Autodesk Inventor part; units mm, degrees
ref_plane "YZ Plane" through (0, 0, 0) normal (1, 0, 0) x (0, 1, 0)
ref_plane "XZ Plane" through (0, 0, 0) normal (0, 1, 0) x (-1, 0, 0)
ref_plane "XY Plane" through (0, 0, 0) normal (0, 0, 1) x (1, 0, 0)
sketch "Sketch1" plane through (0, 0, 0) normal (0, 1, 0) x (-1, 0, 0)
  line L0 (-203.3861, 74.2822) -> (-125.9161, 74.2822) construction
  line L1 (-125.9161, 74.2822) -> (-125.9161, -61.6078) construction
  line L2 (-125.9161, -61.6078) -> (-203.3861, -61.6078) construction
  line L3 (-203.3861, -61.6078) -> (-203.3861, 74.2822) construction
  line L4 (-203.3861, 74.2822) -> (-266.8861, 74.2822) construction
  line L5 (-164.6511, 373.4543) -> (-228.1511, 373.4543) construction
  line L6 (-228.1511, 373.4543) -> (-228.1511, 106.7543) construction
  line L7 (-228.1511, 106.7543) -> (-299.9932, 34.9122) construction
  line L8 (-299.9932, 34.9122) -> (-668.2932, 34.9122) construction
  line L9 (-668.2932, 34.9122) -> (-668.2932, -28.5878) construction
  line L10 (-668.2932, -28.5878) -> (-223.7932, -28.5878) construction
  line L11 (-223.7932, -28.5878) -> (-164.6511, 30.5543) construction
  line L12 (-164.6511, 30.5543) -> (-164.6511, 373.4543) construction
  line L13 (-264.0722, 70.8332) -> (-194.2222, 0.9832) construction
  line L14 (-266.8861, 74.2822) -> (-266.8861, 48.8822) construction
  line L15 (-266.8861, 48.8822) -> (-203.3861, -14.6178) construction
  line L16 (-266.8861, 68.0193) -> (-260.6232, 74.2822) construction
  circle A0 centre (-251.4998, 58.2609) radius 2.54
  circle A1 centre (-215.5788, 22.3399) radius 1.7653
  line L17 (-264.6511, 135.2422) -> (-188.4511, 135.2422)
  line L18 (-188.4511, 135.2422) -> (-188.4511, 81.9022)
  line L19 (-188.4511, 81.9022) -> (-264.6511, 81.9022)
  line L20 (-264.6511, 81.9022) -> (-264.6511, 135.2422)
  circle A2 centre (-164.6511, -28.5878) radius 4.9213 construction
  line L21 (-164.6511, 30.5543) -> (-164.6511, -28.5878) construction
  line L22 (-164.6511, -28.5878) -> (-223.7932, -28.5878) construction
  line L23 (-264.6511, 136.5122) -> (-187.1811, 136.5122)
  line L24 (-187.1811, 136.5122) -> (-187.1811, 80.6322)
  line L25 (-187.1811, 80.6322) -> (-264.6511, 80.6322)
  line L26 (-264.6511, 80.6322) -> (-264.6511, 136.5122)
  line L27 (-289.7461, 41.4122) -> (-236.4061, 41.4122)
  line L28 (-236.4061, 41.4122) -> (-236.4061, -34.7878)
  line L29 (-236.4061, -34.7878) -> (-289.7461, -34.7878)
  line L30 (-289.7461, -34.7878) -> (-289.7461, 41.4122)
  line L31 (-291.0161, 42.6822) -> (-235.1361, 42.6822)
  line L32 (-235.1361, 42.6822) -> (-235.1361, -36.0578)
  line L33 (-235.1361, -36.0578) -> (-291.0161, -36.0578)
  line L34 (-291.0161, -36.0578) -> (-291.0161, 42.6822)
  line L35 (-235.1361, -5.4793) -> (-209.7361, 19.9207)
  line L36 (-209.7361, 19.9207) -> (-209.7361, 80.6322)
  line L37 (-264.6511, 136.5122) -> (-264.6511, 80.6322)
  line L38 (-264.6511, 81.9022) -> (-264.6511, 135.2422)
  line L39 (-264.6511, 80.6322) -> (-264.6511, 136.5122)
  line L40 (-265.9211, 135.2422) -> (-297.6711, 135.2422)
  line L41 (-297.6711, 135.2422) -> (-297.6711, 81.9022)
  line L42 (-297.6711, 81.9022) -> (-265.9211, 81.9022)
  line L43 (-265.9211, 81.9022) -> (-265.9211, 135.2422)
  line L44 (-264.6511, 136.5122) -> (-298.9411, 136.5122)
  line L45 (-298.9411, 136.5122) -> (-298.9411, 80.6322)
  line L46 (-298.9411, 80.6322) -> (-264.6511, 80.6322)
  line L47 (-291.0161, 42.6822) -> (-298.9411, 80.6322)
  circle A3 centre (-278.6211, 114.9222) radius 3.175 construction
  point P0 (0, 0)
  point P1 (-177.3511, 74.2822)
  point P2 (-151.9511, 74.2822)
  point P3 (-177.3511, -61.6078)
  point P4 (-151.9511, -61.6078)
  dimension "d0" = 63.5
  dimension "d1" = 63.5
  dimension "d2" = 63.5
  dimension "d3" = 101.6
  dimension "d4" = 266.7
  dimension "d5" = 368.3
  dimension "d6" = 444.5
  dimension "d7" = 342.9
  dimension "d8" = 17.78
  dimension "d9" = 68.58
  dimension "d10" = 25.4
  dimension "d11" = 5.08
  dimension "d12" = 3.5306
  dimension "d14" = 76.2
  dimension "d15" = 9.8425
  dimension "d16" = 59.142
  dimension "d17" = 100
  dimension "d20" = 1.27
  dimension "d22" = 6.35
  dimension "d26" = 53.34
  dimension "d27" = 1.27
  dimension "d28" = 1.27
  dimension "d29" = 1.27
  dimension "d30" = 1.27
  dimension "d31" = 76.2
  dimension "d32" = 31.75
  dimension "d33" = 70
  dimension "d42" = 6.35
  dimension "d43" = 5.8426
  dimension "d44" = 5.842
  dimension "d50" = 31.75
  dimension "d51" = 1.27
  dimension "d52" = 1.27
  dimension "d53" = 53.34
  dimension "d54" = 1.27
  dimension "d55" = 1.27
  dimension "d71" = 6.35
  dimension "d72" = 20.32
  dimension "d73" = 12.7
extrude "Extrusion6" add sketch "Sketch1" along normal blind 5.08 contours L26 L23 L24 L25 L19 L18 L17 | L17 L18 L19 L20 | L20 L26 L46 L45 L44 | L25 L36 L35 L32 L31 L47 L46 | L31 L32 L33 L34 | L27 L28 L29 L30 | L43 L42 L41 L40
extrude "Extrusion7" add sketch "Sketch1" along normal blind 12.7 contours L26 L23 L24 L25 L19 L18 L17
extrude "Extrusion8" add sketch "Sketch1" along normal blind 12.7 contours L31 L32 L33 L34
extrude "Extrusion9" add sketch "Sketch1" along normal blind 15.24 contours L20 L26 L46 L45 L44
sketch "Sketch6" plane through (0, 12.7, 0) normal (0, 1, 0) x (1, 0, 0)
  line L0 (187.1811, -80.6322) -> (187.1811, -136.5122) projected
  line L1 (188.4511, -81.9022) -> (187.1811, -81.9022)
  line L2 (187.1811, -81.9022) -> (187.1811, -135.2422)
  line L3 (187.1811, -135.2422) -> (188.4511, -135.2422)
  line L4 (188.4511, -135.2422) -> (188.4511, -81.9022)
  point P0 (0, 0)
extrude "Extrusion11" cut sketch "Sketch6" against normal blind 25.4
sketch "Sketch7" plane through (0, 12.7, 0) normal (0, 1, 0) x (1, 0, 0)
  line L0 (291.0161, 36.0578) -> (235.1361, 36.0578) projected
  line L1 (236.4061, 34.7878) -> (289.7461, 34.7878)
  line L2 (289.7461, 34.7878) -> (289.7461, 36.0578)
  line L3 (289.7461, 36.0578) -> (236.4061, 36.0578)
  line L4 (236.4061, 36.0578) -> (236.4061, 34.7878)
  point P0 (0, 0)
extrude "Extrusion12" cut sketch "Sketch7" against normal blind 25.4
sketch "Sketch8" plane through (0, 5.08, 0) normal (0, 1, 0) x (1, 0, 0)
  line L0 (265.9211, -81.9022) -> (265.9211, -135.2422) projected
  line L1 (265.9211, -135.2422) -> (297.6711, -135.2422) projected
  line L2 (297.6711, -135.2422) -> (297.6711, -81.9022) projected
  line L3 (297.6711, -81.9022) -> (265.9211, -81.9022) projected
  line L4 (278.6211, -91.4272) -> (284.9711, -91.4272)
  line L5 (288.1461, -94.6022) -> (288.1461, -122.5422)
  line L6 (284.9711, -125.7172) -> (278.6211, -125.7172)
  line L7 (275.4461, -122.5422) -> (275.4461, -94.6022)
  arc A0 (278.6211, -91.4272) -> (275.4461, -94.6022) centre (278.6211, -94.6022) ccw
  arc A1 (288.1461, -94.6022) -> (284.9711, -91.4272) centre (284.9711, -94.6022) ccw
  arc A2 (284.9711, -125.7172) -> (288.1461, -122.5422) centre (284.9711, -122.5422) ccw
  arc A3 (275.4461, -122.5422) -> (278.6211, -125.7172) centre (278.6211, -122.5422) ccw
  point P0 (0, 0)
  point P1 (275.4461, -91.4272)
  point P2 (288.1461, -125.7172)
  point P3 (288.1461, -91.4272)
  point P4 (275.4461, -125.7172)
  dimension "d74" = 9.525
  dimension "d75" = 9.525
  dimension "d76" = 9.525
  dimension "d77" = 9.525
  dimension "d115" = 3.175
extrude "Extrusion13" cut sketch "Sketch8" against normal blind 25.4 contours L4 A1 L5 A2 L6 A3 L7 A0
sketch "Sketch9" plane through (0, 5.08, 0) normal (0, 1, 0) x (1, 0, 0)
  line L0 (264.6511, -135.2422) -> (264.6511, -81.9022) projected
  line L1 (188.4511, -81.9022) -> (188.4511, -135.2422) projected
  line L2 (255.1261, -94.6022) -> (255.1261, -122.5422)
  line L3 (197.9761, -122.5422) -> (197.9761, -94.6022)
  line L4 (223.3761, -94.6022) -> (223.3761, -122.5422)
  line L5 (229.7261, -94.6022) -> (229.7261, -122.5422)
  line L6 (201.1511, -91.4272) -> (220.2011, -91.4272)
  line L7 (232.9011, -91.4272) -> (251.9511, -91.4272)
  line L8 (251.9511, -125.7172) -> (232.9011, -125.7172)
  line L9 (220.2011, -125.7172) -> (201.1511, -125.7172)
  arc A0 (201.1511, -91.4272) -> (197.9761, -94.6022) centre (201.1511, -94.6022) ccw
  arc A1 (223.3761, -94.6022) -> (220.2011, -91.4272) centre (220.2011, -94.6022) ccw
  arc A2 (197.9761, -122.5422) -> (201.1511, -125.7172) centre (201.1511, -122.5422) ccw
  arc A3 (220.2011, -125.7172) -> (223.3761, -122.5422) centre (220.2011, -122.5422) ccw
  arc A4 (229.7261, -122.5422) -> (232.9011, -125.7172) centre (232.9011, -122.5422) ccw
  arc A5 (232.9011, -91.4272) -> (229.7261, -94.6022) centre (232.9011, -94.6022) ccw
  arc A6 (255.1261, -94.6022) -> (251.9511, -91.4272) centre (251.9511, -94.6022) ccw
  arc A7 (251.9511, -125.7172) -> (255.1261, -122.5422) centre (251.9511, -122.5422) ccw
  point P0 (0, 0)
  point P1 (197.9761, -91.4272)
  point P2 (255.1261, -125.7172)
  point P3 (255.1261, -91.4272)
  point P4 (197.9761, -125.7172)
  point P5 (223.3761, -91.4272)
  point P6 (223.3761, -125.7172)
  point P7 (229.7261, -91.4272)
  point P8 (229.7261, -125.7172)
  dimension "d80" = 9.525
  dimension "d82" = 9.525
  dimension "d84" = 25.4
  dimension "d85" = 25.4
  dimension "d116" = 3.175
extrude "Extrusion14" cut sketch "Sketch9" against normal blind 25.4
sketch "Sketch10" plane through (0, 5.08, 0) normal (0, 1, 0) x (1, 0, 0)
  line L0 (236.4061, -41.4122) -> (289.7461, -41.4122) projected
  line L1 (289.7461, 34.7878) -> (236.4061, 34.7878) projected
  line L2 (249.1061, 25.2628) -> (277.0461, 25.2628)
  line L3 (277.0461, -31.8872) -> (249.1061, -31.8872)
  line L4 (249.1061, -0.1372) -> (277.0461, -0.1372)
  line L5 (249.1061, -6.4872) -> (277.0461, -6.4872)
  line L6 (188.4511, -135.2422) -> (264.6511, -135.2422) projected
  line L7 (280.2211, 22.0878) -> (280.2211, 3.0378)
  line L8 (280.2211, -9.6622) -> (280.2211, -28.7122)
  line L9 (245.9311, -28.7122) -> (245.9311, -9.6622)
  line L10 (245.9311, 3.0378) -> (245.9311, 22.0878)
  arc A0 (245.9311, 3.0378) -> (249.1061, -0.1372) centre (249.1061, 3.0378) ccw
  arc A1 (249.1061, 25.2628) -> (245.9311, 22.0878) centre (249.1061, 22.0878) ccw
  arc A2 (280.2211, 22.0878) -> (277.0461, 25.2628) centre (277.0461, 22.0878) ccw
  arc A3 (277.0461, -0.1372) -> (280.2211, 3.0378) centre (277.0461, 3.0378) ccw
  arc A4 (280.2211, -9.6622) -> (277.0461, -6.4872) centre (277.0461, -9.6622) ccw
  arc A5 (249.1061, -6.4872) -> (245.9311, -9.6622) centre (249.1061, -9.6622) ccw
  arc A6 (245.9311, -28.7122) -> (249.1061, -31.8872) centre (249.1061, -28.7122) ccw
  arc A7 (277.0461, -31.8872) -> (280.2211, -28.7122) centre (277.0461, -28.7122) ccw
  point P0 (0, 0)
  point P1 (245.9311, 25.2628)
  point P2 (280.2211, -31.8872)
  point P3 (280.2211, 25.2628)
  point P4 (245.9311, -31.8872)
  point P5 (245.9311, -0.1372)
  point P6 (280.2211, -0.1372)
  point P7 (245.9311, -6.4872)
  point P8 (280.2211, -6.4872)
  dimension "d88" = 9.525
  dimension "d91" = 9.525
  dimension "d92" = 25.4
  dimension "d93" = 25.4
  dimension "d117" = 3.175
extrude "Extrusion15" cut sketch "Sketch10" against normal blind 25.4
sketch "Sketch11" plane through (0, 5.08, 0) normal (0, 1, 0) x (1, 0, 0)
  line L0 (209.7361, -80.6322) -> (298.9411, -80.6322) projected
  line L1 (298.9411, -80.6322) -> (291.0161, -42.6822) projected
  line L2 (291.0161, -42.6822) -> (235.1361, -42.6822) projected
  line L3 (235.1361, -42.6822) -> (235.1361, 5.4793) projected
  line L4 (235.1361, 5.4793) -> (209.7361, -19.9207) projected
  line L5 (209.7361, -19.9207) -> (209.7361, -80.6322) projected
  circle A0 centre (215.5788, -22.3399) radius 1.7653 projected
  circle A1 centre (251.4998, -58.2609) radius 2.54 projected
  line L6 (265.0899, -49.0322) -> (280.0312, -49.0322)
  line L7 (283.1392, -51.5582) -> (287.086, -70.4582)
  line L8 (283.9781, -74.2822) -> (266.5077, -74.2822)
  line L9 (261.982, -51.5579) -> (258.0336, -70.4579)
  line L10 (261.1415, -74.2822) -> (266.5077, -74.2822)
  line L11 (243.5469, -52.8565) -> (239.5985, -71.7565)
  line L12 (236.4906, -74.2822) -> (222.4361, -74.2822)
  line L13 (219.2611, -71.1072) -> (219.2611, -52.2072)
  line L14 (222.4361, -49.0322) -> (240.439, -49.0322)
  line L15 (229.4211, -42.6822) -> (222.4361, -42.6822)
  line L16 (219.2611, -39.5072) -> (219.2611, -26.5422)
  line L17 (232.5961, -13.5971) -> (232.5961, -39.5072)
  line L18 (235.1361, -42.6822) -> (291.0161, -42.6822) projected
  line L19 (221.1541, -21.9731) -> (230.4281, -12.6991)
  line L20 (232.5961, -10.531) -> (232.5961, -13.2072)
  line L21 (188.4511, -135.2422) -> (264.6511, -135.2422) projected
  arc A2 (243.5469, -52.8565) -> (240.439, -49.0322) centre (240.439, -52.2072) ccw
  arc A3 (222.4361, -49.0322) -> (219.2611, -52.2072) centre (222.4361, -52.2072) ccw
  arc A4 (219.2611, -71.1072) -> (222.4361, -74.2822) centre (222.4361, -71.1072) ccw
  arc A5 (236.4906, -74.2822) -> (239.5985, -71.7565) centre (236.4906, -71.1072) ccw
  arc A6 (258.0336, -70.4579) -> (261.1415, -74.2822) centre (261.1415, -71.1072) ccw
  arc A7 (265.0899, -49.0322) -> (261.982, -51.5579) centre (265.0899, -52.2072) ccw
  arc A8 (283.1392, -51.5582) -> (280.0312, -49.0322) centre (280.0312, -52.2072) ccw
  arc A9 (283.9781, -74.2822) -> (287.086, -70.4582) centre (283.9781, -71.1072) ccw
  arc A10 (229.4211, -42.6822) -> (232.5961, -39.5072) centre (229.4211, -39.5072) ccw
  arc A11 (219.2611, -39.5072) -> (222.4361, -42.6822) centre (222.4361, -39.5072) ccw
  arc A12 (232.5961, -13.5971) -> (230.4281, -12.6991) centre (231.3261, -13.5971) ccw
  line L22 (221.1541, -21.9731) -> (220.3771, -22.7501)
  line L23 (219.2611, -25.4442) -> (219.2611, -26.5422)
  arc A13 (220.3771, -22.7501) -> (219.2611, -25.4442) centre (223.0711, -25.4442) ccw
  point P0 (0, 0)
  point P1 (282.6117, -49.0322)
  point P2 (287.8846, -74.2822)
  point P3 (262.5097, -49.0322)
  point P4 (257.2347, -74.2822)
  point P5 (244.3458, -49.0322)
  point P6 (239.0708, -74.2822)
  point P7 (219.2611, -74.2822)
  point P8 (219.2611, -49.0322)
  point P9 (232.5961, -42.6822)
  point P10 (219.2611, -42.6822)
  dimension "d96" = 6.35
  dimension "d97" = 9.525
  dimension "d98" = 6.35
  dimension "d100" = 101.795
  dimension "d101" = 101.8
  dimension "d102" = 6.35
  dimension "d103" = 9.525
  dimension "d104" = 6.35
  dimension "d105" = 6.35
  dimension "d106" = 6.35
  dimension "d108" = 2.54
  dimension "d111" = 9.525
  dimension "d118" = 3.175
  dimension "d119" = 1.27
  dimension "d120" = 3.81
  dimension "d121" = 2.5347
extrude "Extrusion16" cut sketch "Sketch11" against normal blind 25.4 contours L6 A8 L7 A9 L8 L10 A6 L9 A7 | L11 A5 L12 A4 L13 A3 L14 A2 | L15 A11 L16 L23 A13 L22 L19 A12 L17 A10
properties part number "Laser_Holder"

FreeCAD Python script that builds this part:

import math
import FreeCAD as App
import Part
import Sketcher
Q = App.Units.Quantity


def add_polygon(sketch, points):
    """Adds a closed chain of lines whose ends are joined by coincident constraints."""
    first, n = sketch.GeometryCount, len(points)
    for a, b in zip(points, points[1:] + points[:1]):
        sketch.addGeometry(Part.LineSegment(App.Vector(*a, 0), App.Vector(*b, 0)), False)
    for i in range(n):
        sketch.addConstraint(Sketcher.Constraint("Coincident", first + i, 2, first + (i + 1) % n, 1))

doc = App.newDocument("Part")
params = doc.addObject("Spreadsheet::Sheet", "Params")
for row, (alias, value) in enumerate([
    ("sketch1_diameter", "0.2 in"),
    ("sketch1_diameter2", "0.139 in"),
    ("sketch1_width", "4.4 in"),
    ("sketch1_width2", "2.2 in"),
    ("sketch1_height", "3.1 in"),
    ("pad1_length", "0.2 in"),
    ("sketch2_width", "3 in"),
    ("sketch2_height", "2.1 in"),
    ("sketch2_height2", "0.05 in"),
    ("pad2_length", "0.5 in"),
    ("sketch3_height", "3 in"),
    ("sketch3_width", "2.1 in"),
    ("pad3_length", "0.5 in"),
    ("sketch4_height", "2.1 in"),
    ("sketch4_width", "1.25 in"),
    ("pad4_length", "0.6 in"),
    ("sketch5_height", "2.1 in"),
    ("sketch5_width", "0.05 in"),
    ("pocket1_length", "1 in"),
    ("sketch6_width", "2.1 in"),
    ("sketch6_height", "0.05 in"),
    ("pocket2_length", "1 in"),
    ("sketch7_radius", "0.125 in"),
    ("sketch7_height", "1.1 in"),
    ("pocket3_length", "1 in"),
    ("sketch8_radius", "0.125 in"),
    ("sketch8_height", "1.1 in"),
    ("pocket4_length", "1 in"),
    ("sketch9_radius", "0.125 in"),
    ("sketch9_width", "1.1 in"),
    ("pocket5_length", "1 in"),
    ("sketch10_radius", "0.05 in"),
    ("sketch10_radius2", "0.15 in"),
    ("sketch10_radius3", "0.125 in"),
    ("pocket6_length", "1 in"),
], start=1):
    params.set(f"A{row}", alias)
    params.set(f"B{row}", "=" + value)
    params.setAlias(f"B{row}", alias)

body = doc.addObject("PartDesign::Body", "Body")

# Sketch on XZ plane
sketch1 = body.newObject("Sketcher::SketchObject", "Sketch")
sketch1.AttachmentSupport = (doc.getObject("XZ_Plane"), [""])
sketch1.MapMode = "FlatFace"
add_polygon(sketch1, [(187.2, 136.5), (298.9, 136.5), (298.9, 80.6), (291, 42.7), (291, -36.1), (235.1, -36.1), (235.1, -5.5), (209.7, 19.9), (209.7, 80.6), (187.2, 80.6)])  # lines 0-9
sketch1.addGeometry(Part.Circle(App.Vector(251.5, 58.3, 0), App.Vector(0, 0, 1), 2.5), False)  # 10
sketch1.addGeometry(Part.Circle(App.Vector(215.6, 22.3, 0), App.Vector(0, 0, 1), 1.8), False)  # 11
sketch1.addConstraint([
    Sketcher.Constraint("Horizontal", 0),
    Sketcher.Constraint("Vertical", 1),
    Sketcher.Constraint("Vertical", 3),
    Sketcher.Constraint("Horizontal", 4),
    Sketcher.Constraint("Vertical", 5),
    Sketcher.Constraint("Vertical", 7),
    Sketcher.Constraint("Horizontal", 8),
    Sketcher.Constraint("Vertical", 9),
    Sketcher.Constraint("Horizontal", 1, 2, 7, 2),
    Sketcher.Constraint("Equal", 4, 1),
    Sketcher.Constraint("Diameter", 10, Q("0.2 in")),
    Sketcher.Constraint("Diameter", 11, Q("0.139 in")),
    Sketcher.Constraint("DistanceX", 6, 2, 5, 2, Q("1 in")),
    Sketcher.Constraint("DistanceY", 5, 2, 6, 2, Q("1 in")),
    Sketcher.Constraint("DistanceX", 0, 1, 0, 2, Q("4.4 in")),
    Sketcher.Constraint("DistanceX", 4, 2, 4, 1, Q("2.2 in")),
    Sketcher.Constraint("DistanceY", 3, 2, 3, 1, Q("3.1 in")),
    Sketcher.Constraint("DistanceX", 8, 2, 8, 1, Q("0.888 in")),
    Sketcher.Constraint("DistanceX", 6, 2, 11, 3, 5.8427),
    Sketcher.Constraint("DistanceY", 5, 1, 5, 2, 30.5785),
    Sketcher.Constraint("DistanceY", 7, 1, 7, 2, 60.7115),
    Sketcher.Constraint("DistanceY", -1, 1, 0, 2, Q("5.3745 in")),
    Sketcher.Constraint("DistanceX", -1, 1, 10, 3, 251.4998),
    Sketcher.Constraint("DistanceY", -1, 1, 10, 3, 58.261),
    Sketcher.Constraint("DistanceX", -1, 1, 11, 3, 215.5788),
    Sketcher.Constraint("DistanceY", -1, 1, 11, 3, 22.34),
])
sketch1.setExpression("Constraints[20]", "Params.sketch1_diameter")
sketch1.setExpression("Constraints[21]", "Params.sketch1_diameter2")
sketch1.setExpression("Constraints[24]", "Params.sketch1_width")
sketch1.setExpression("Constraints[25]", "Params.sketch1_width2")
sketch1.setExpression("Constraints[26]", "Params.sketch1_height")
pad1 = body.newObject("PartDesign::Pad", "Pad")
pad1.Profile = sketch1
pad1.setExpression("Length", "Params.pad1_length")
pad1.Reversed = True

# Sketch on XZ plane
sketch2 = body.newObject("Sketcher::SketchObject", "Sketch001")
sketch2.AttachmentSupport = (doc.getObject("XZ_Plane"), [""])
sketch2.MapMode = "FlatFace"
add_polygon(sketch2, [(264.7, 136.5), (264.7, 135.2), (188.5, 135.2), (188.5, 81.9), (264.7, 81.9), (264.7, 80.6), (187.2, 80.6), (187.2, 136.5)])  # lines 0-7
sketch2.addConstraint([
    Sketcher.Constraint("Vertical", 0),
    Sketcher.Constraint("Horizontal", 1),
    Sketcher.Constraint("Vertical", 2),
    Sketcher.Constraint("Horizontal", 3),
    Sketcher.Constraint("Vertical", 4),
    Sketcher.Constraint("Horizontal", 5),
    Sketcher.Constraint("Vertical", 6),
    Sketcher.Constraint("Horizontal", 7),
    Sketcher.Constraint("Vertical", 0, 2, 3, 2),
    Sketcher.Constraint("Equal", 0, 4),
    Sketcher.Constraint("DistanceX", 1, 2, 1, 1, Q("3 in")),
    Sketcher.Constraint("DistanceY", 2, 2, 2, 1, Q("2.1 in")),
    Sketcher.Constraint("DistanceY", 0, 2, 0, 1, Q("0.05 in")),
    Sketcher.Constraint("DistanceX", 5, 2, 2, 2, Q("0.05 in")),
    Sketcher.Constraint("DistanceY", -1, 1, 0, 2, Q("5.3245 in")),
    Sketcher.Constraint("DistanceX", -1, 1, 0, 2, 264.651),
])
sketch2.setExpression("Constraints[18]", "Params.sketch2_width")
sketch2.setExpression("Constraints[19]", "Params.sketch2_height")
sketch2.setExpression("Constraints[20]", "Params.sketch2_height2")
pad2 = body.newObject("PartDesign::Pad", "Pad001")
pad2.Profile = sketch2
pad2.setExpression("Length", "Params.pad2_length")
pad2.Reversed = True

# Sketch on XZ plane
sketch3 = body.newObject("Sketcher::SketchObject", "Sketch002")
sketch3.AttachmentSupport = (doc.getObject("XZ_Plane"), [""])
sketch3.MapMode = "FlatFace"
add_polygon(sketch3, [(235, 43), (291, 43), (291, -36), (235, -36)])  # lines 0-3
add_polygon(sketch3, [(290, -35), (290, 41), (236, 41), (236, -35)])  # lines 4-7
sketch3.addConstraint([
    Sketcher.Constraint("Horizontal", 0),
    Sketcher.Constraint("Vertical", 1),
    Sketcher.Constraint("Horizontal", 2),
    Sketcher.Constraint("Vertical", 3),
    Sketcher.Constraint("Vertical", 4),
    Sketcher.Constraint("Horizontal", 5),
    Sketcher.Constraint("Vertical", 6),
    Sketcher.Constraint("Horizontal", 7),
    Sketcher.Constraint("DistanceY", 4, 1, 4, 2, Q("3 in")),
    Sketcher.Constraint("DistanceX", 5, 2, 5, 1, Q("2.1 in")),
    Sketcher.Constraint("DistanceX", 4, 2, 0, 2, Q("0.05 in")),
    Sketcher.Constraint("DistanceY", 4, 2, 0, 2, Q("0.05 in")),
    Sketcher.Constraint("DistanceX", 3, 2, 5, 2, Q("0.05 in")),
    Sketcher.Constraint("DistanceY", 2, 2, 6, 2, Q("0.05 in")),
    Sketcher.Constraint("DistanceY", -1, 1, 0, 2, Q("1.6804 in")),
    Sketcher.Constraint("DistanceX", -1, 1, 0, 2, 291.016),
])
sketch3.setExpression("Constraints[16]", "Params.sketch3_height")
sketch3.setExpression("Constraints[17]", "Params.sketch3_width")
pad3 = body.newObject("PartDesign::Pad", "Pad002")
pad3.Profile = sketch3
pad3.setExpression("Length", "Params.pad3_length")
pad3.Reversed = True

# Sketch on XZ plane
sketch4 = body.newObject("Sketcher::SketchObject", "Sketch003")
sketch4.AttachmentSupport = (doc.getObject("XZ_Plane"), [""])
sketch4.MapMode = "FlatFace"
add_polygon(sketch4, [(265, 81), (265, 137), (299, 137), (299, 81)])  # lines 0-3
add_polygon(sketch4, [(298, 135), (266, 135), (266, 82), (298, 82)])  # lines 4-7
sketch4.addConstraint([
    Sketcher.Constraint("Vertical", 0),
    Sketcher.Constraint("Horizontal", 1),
    Sketcher.Constraint("Vertical", 2),
    Sketcher.Constraint("Horizontal", 3),
    Sketcher.Constraint("Horizontal", 4),
    Sketcher.Constraint("Vertical", 5),
    Sketcher.Constraint("Horizontal", 6),
    Sketcher.Constraint("Vertical", 7),
    Sketcher.Constraint("DistanceY", 5, 2, 5, 1, Q("2.1 in")),
    Sketcher.Constraint("DistanceX", 4, 2, 4, 1, Q("1.25 in")),
    Sketcher.Constraint("DistanceX", 0, 2, 4, 2, Q("0.05 in")),
    Sketcher.Constraint("DistanceY", 4, 2, 0, 2, Q("0.05 in")),
    Sketcher.Constraint("DistanceY", 3, 2, 5, 2, Q("0.05 in")),
    Sketcher.Constraint("DistanceX", 6, 2, 2, 2, Q("0.05 in")),
    Sketcher.Constraint("DistanceY", -1, 1, 0, 2, Q("5.3745 in")),
    Sketcher.Constraint("DistanceX", -1, 1, 0, 2, 264.651),
])
sketch4.setExpression("Constraints[16]", "Params.sketch4_height")
sketch4.setExpression("Constraints[17]", "Params.sketch4_width")
pad4 = body.newObject("PartDesign::Pad", "Pad003")
pad4.Profile = sketch4
pad4.setExpression("Length", "Params.pad4_length")
pad4.Reversed = True

# Sketch on XZ plane
sketch5 = body.newObject("Sketcher::SketchObject", "Sketch004")
sketch5.AttachmentSupport = (doc.getObject("XZ_Plane"), [""])
sketch5.MapMode = "FlatFace"
sketch5.AttachmentOffset = App.Placement(App.Vector(0, 0, -0.5 * 25.4), App.Rotation())
add_polygon(sketch5, [(188.5, 81.9), (187.2, 81.9), (187.2, 135.2), (188.5, 135.2)])  # lines 0-3
sketch5.addConstraint([
    Sketcher.Constraint("Horizontal", 0),
    Sketcher.Constraint("Vertical", 1),
    Sketcher.Constraint("Horizontal", 2),
    Sketcher.Constraint("Vertical", 3),
    Sketcher.Constraint("DistanceY", 1, 1, 1, 2, Q("2.1 in")),
    Sketcher.Constraint("DistanceX", 0, 2, 0, 1, Q("0.05 in")),
    Sketcher.Constraint("DistanceY", -1, 1, 0, 2, Q("3.2245 in")),
    Sketcher.Constraint("DistanceX", -1, 1, 0, 2, 187.181),
])
sketch5.setExpression("Constraints[8]", "Params.sketch5_height")
sketch5.setExpression("Constraints[9]", "Params.sketch5_width")
pocket1 = body.newObject("PartDesign::Pocket", "Pocket")
pocket1.Profile = sketch5
pocket1.setExpression("Length", "Params.pocket1_length")
pocket1.Reversed = True

# Sketch on XZ plane
sketch6 = body.newObject("Sketcher::SketchObject", "Sketch005")
sketch6.AttachmentSupport = (doc.getObject("XZ_Plane"), [""])
sketch6.MapMode = "FlatFace"
sketch6.AttachmentOffset = App.Placement(App.Vector(0, 0, -0.5 * 25.4), App.Rotation())
add_polygon(sketch6, [(289.7, -34.8), (289.7, -36.1), (236.4, -36.1), (236.4, -34.8)])  # lines 0-3
sketch6.addConstraint([
    Sketcher.Constraint("Vertical", 0),
    Sketcher.Constraint("Horizontal", 1),
    Sketcher.Constraint("Vertical", 2),
    Sketcher.Constraint("Horizontal", 3),
    Sketcher.Constraint("DistanceX", 1, 2, 1, 1, Q("2.1 in")),
    Sketcher.Constraint("DistanceY", 0, 2, 0, 1, Q("0.05 in")),
    Sketcher.Constraint("DistanceY", 0, 2, -1, 1, Q("1.4196 in")),
    Sketcher.Constraint("DistanceX", -1, 1, 0, 2, 289.746),
])
sketch6.setExpression("Constraints[8]", "Params.sketch6_width")
sketch6.setExpression("Constraints[9]", "Params.sketch6_height")
pocket2 = body.newObject("PartDesign::Pocket", "Pocket001")
pocket2.Profile = sketch6
pocket2.setExpression("Length", "Params.pocket2_length")
pocket2.Reversed = True

# Sketch on XZ plane
sketch7 = body.newObject("Sketcher::SketchObject", "Sketch006")
sketch7.AttachmentSupport = (doc.getObject("XZ_Plane"), [""])
sketch7.MapMode = "FlatFace"
sketch7.AttachmentOffset = App.Placement(App.Vector(0, 0, -0.2 * 25.4), App.Rotation())
sketch7.addGeometry([
    Part.LineSegment(App.Vector(285, 91.4, 0), App.Vector(278.6, 91.4, 0)),  # 0
    Part.ArcOfCircle(Part.Circle(App.Vector(278.6, 94.6, 0), App.Vector(0, 0, 1), 3.2), math.radians(180), math.radians(270)),  # 1
    Part.LineSegment(App.Vector(275.4, 94.6, 0), App.Vector(275.4, 122.5, 0)),  # 2
    Part.ArcOfCircle(Part.Circle(App.Vector(278.6, 122.5, 0), App.Vector(0, 0, 1), 3.2), math.radians(90), math.radians(180)),  # 3
    Part.LineSegment(App.Vector(278.6, 125.7, 0), App.Vector(285, 125.7, 0)),  # 4
    Part.ArcOfCircle(Part.Circle(App.Vector(285, 122.5, 0), App.Vector(0, 0, 1), 3.2), math.radians(0), math.radians(90)),  # 5
    Part.LineSegment(App.Vector(288.1, 122.5, 0), App.Vector(288.1, 94.6, 0)),  # 6
    Part.ArcOfCircle(Part.Circle(App.Vector(285, 94.6, 0), App.Vector(0, 0, 1), 3.2), math.radians(-90), math.radians(0)),  # 7
], False)
sketch7.addConstraint([
    Sketcher.Constraint("Tangent", 0, 2, 1, 2),
    Sketcher.Constraint("Tangent", 1, 1, 2, 1),
    Sketcher.Constraint("Tangent", 2, 2, 3, 2),
    Sketcher.Constraint("Tangent", 3, 1, 4, 1),
    Sketcher.Constraint("Tangent", 4, 2, 5, 2),
    Sketcher.Constraint("Tangent", 5, 1, 6, 1),
    Sketcher.Constraint("Tangent", 6, 2, 7, 2),
    Sketcher.Constraint("Tangent", 7, 1, 0, 1),
    Sketcher.Constraint("Horizontal", 0),
    Sketcher.Constraint("Vertical", 2),
    Sketcher.Constraint("Horizontal", 4),
    Sketcher.Constraint("Vertical", 6),
    Sketcher.Constraint("Equal", 1, 3),
    Sketcher.Constraint("Equal", 3, 5),
    Sketcher.Constraint("Equal", 5, 7),
    Sketcher.Constraint("Radius", 1, Q("0.125 in")),
    Sketcher.Constraint("DistanceY", 2, 1, 2, 2, Q("1.1 in")),
    Sketcher.Constraint("DistanceX", 1, 1, 7, 3, Q("0.375 in")),
    Sketcher.Constraint("DistanceY", -1, 1, 1, 3, Q("3.7245 in")),
    Sketcher.Constraint("DistanceX", -1, 1, 1, 3, 278.621),
])
sketch7.setExpression("Constraints[15]", "Params.sketch7_radius")
sketch7.setExpression("Constraints[16]", "Params.sketch7_height")
pocket3 = body.newObject("PartDesign::Pocket", "Pocket002")
pocket3.Profile = sketch7
pocket3.setExpression("Length", "Params.pocket3_length")
pocket3.Reversed = True

# Sketch on XZ plane
sketch8 = body.newObject("Sketcher::SketchObject", "Sketch007")
sketch8.AttachmentSupport = (doc.getObject("XZ_Plane"), [""])
sketch8.MapMode = "FlatFace"
sketch8.AttachmentOffset = App.Placement(App.Vector(0, 0, -0.2 * 25.4), App.Rotation())
sketch8.addGeometry([
    Part.LineSegment(App.Vector(255.1, 122.5, 0), App.Vector(255.1, 94.6, 0)),  # 0
    Part.ArcOfCircle(Part.Circle(App.Vector(252, 94.6, 0), App.Vector(0, 0, 1), 3.2), math.radians(-90), math.radians(0)),  # 1
    Part.LineSegment(App.Vector(252, 91.4, 0), App.Vector(232.9, 91.4, 0)),  # 2
    Part.ArcOfCircle(Part.Circle(App.Vector(232.9, 94.6, 0), App.Vector(0, 0, 1), 3.2), math.radians(180), math.radians(270)),  # 3
    Part.LineSegment(App.Vector(229.7, 94.6, 0), App.Vector(229.7, 122.5, 0)),  # 4
    Part.ArcOfCircle(Part.Circle(App.Vector(232.9, 122.5, 0), App.Vector(0, 0, 1), 3.2), math.radians(90), math.radians(180)),  # 5
    Part.LineSegment(App.Vector(232.9, 125.7, 0), App.Vector(252, 125.7, 0)),  # 6
    Part.ArcOfCircle(Part.Circle(App.Vector(252, 122.5, 0), App.Vector(0, 0, 1), 3.2), math.radians(0), math.radians(90)),  # 7
    Part.LineSegment(App.Vector(198, 94.6, 0), App.Vector(198, 122.5, 0)),  # 8
    Part.ArcOfCircle(Part.Circle(App.Vector(201.2, 122.5, 0), App.Vector(0, 0, 1), 3.2), math.radians(90), math.radians(180)),  # 9
    Part.LineSegment(App.Vector(201.2, 125.7, 0), App.Vector(220.2, 125.7, 0)),  # 10
    Part.ArcOfCircle(Part.Circle(App.Vector(220.2, 122.5, 0), App.Vector(0, 0, 1), 3.2), math.radians(0), math.radians(90)),  # 11
    Part.LineSegment(App.Vector(223.4, 122.5, 0), App.Vector(223.4, 94.6, 0)),  # 12
    Part.ArcOfCircle(Part.Circle(App.Vector(220.2, 94.6, 0), App.Vector(0, 0, 1), 3.2), math.radians(-90), math.radians(0)),  # 13
    Part.LineSegment(App.Vector(220.2, 91.4, 0), App.Vector(201.2, 91.4, 0)),  # 14
    Part.ArcOfCircle(Part.Circle(App.Vector(201.2, 94.6, 0), App.Vector(0, 0, 1), 3.2), math.radians(180), math.radians(270)),  # 15
], False)
sketch8.addConstraint([
    Sketcher.Constraint("Tangent", 0, 2, 1, 2),
    Sketcher.Constraint("Tangent", 1, 1, 2, 1),
    Sketcher.Constraint("Tangent", 2, 2, 3, 2),
    Sketcher.Constraint("Tangent", 3, 1, 4, 1),
    Sketcher.Constraint("Tangent", 4, 2, 5, 2),
    Sketcher.Constraint("Tangent", 5, 1, 6, 1),
    Sketcher.Constraint("Tangent", 6, 2, 7, 2),
    Sketcher.Constraint("Tangent", 7, 1, 0, 1),
    Sketcher.Constraint("Tangent", 8, 2, 9, 2),
    Sketcher.Constraint("Tangent", 9, 1, 10, 1),
    Sketcher.Constraint("Tangent", 10, 2, 11, 2),
    Sketcher.Constraint("Tangent", 11, 1, 12, 1),
    Sketcher.Constraint("Tangent", 12, 2, 13, 2),
    Sketcher.Constraint("Tangent", 13, 1, 14, 1),
    Sketcher.Constraint("Tangent", 14, 2, 15, 2),
    Sketcher.Constraint("Tangent", 15, 1, 8, 1),
    Sketcher.Constraint("Vertical", 0),
    Sketcher.Constraint("Horizontal", 2),
    Sketcher.Constraint("Vertical", 4),
    Sketcher.Constraint("Horizontal", 6),
    Sketcher.Constraint("Vertical", 8),
    Sketcher.Constraint("Horizontal", 10),
    Sketcher.Constraint("Vertical", 12),
    Sketcher.Constraint("Horizontal", 14),
    Sketcher.Constraint("Equal", 1, 3),
    Sketcher.Constraint("Equal", 3, 5),
    Sketcher.Constraint("Equal", 5, 7),
    Sketcher.Constraint("Equal", 7, 9),
    Sketcher.Constraint("Equal", 9, 11),
    Sketcher.Constraint("Equal", 11, 13),
    Sketcher.Constraint("Equal", 13, 15),
    Sketcher.Constraint("Horizontal", 7, 3, 9, 3),
    Sketcher.Constraint("Horizontal", 3, 3, 13, 3),
    Sketcher.Constraint("Equal", 6, 10),
    Sketcher.Constraint("Radius", 1, Q("0.125 in")),
    Sketcher.Constraint("DistanceX", 4, 2, 7, 1, Q("1 in")),
    Sketcher.Constraint("DistanceY", 0, 2, 0, 1, Q("1.1 in")),
    Sketcher.Constraint("DistanceX", 9, 3, 7, 3, Q("2 in")),
    Sketcher.Constraint("DistanceY", -1, 1, 1, 3, Q("3.7245 in")),
    Sketcher.Constraint("DistanceX", -1, 1, 1, 3, 251.951),
])
sketch8.setExpression("Constraints[34]", "Params.sketch8_radius")
sketch8.setExpression("Constraints[36]", "Params.sketch8_height")
pocket4 = body.newObject("PartDesign::Pocket", "Pocket003")
pocket4.Profile = sketch8
pocket4.setExpression("Length", "Params.pocket4_length")
pocket4.Reversed = True

# Sketch on XZ plane
sketch9 = body.newObject("Sketcher::SketchObject", "Sketch008")
sketch9.AttachmentSupport = (doc.getObject("XZ_Plane"), [""])
sketch9.MapMode = "FlatFace"
sketch9.AttachmentOffset = App.Placement(App.Vector(0, 0, -0.2 * 25.4), App.Rotation())
sketch9.addGeometry([
    Part.LineSegment(App.Vector(277, -25.3, 0), App.Vector(249.1, -25.3, 0)),  # 0
    Part.ArcOfCircle(Part.Circle(App.Vector(249.1, -22.1, 0), App.Vector(0, 0, 1), 3.2), math.radians(180), math.radians(270)),  # 1
    Part.LineSegment(App.Vector(245.9, -22.1, 0), App.Vector(245.9, -3, 0)),  # 2
    Part.ArcOfCircle(Part.Circle(App.Vector(249.1, -3, 0), App.Vector(0, 0, 1), 3.2), math.radians(90), math.radians(180)),  # 3
    Part.LineSegment(App.Vector(249.1, 0.1, 0), App.Vector(277, 0.1, 0)),  # 4
    Part.ArcOfCircle(Part.Circle(App.Vector(277, -3, 0), App.Vector(0, 0, 1), 3.2), math.radians(0), math.radians(90)),  # 5
    Part.LineSegment(App.Vector(280.2, -3, 0), App.Vector(280.2, -22.1, 0)),  # 6
    Part.ArcOfCircle(Part.Circle(App.Vector(277, -22.1, 0), App.Vector(0, 0, 1), 3.2), math.radians(-90), math.radians(0)),  # 7
    Part.LineSegment(App.Vector(249.1, 31.9, 0), App.Vector(277, 31.9, 0)),  # 8
    Part.ArcOfCircle(Part.Circle(App.Vector(277, 28.7, 0), App.Vector(0, 0, 1), 3.2), math.radians(0), math.radians(90)),  # 9
    Part.LineSegment(App.Vector(280.2, 28.7, 0), App.Vector(280.2, 9.7, 0)),  # 10
    Part.ArcOfCircle(Part.Circle(App.Vector(277, 9.7, 0), App.Vector(0, 0, 1), 3.2), math.radians(-90), math.radians(0)),  # 11
    Part.LineSegment(App.Vector(277, 6.5, 0), App.Vector(249.1, 6.5, 0)),  # 12
    Part.ArcOfCircle(Part.Circle(App.Vector(249.1, 9.7, 0), App.Vector(0, 0, 1), 3.2), math.radians(180), math.radians(270)),  # 13
    Part.LineSegment(App.Vector(245.9, 9.7, 0), App.Vector(245.9, 28.7, 0)),  # 14
    Part.ArcOfCircle(Part.Circle(App.Vector(249.1, 28.7, 0), App.Vector(0, 0, 1), 3.2), math.radians(90), math.radians(180)),  # 15
], False)
sketch9.addConstraint([
    Sketcher.Constraint("Tangent", 0, 2, 1, 2),
    Sketcher.Constraint("Tangent", 1, 1, 2, 1),
    Sketcher.Constraint("Tangent", 2, 2, 3, 2),
    Sketcher.Constraint("Tangent", 3, 1, 4, 1),
    Sketcher.Constraint("Tangent", 4, 2, 5, 2),
    Sketcher.Constraint("Tangent", 5, 1, 6, 1),
    Sketcher.Constraint("Tangent", 6, 2, 7, 2),
    Sketcher.Constraint("Tangent", 7, 1, 0, 1),
    Sketcher.Constraint("Tangent", 8, 2, 9, 2),
    Sketcher.Constraint("Tangent", 9, 1, 10, 1),
    Sketcher.Constraint("Tangent", 10, 2, 11, 2),
    Sketcher.Constraint("Tangent", 11, 1, 12, 1),
    Sketcher.Constraint("Tangent", 12, 2, 13, 2),
    Sketcher.Constraint("Tangent", 13, 1, 14, 1),
    Sketcher.Constraint("Tangent", 14, 2, 15, 2),
    Sketcher.Constraint("Tangent", 15, 1, 8, 1),
    Sketcher.Constraint("Horizontal", 0),
    Sketcher.Constraint("Vertical", 2),
    Sketcher.Constraint("Horizontal", 4),
    Sketcher.Constraint("Vertical", 6),
    Sketcher.Constraint("Horizontal", 8),
    Sketcher.Constraint("Vertical", 10),
    Sketcher.Constraint("Horizontal", 12),
    Sketcher.Constraint("Vertical", 14),
    Sketcher.Constraint("Equal", 1, 3),
    Sketcher.Constraint("Equal", 3, 5),
    Sketcher.Constraint("Equal", 5, 7),
    Sketcher.Constraint("Equal", 7, 9),
    Sketcher.Constraint("Equal", 9, 11),
    Sketcher.Constraint("Equal", 11, 13),
    Sketcher.Constraint("Equal", 13, 15),
    Sketcher.Constraint("Vertical", 7, 3, 9, 3),
    Sketcher.Constraint("Vertical", 3, 3, 13, 3),
    Sketcher.Constraint("Equal", 6, 10),
    Sketcher.Constraint("Radius", 1, Q("0.125 in")),
    Sketcher.Constraint("DistanceY", 7, 1, 4, 2, Q("1 in")),
    Sketcher.Constraint("DistanceX", 0, 2, 0, 1, Q("1.1 in")),
    Sketcher.Constraint("DistanceY", 7, 3, 9, 3, Q("2 in")),
    Sketcher.Constraint("DistanceY", 1, 3, -1, 1, Q("0.8696 in")),
    Sketcher.Constraint("DistanceX", -1, 1, 1, 3, 249.106),
])
sketch9.setExpression("Constraints[34]", "Params.sketch9_radius")
sketch9.setExpression("Constraints[36]", "Params.sketch9_width")
pocket5 = body.newObject("PartDesign::Pocket", "Pocket004")
pocket5.Profile = sketch9
pocket5.setExpression("Length", "Params.pocket5_length")
pocket5.Reversed = True

# Sketch on XZ plane
sketch10 = body.newObject("Sketcher::SketchObject", "Sketch009")
sketch10.AttachmentSupport = (doc.getObject("XZ_Plane"), [""])
sketch10.MapMode = "FlatFace"
sketch10.AttachmentOffset = App.Placement(App.Vector(0, 0, -0.2 * 25.4), App.Rotation())
sketch10.addGeometry([
    Part.LineSegment(App.Vector(280, 49, 0), App.Vector(265.1, 49, 0)),  # 0
    Part.ArcOfCircle(Part.Circle(App.Vector(265.1, 52.2, 0), App.Vector(0, 0, 1), 3.2), math.radians(-168), math.radians(-90)),  # 1
    Part.LineSegment(App.Vector(262, 51.6, 0), App.Vector(258, 70.5, 0)),  # 2
    Part.ArcOfCircle(Part.Circle(App.Vector(261.1, 71.1, 0), App.Vector(0, 0, 1), 3.2), math.radians(90), math.radians(192)),  # 3
    Part.LineSegment(App.Vector(261.1, 74.3, 0), App.Vector(284, 74.3, 0)),  # 4
    Part.ArcOfCircle(Part.Circle(App.Vector(284, 71.1, 0), App.Vector(0, 0, 1), 3.2), math.radians(-12), math.radians(90)),  # 5
    Part.LineSegment(App.Vector(287.1, 70.5, 0), App.Vector(283.1, 51.6, 0)),  # 6
    Part.ArcOfCircle(Part.Circle(App.Vector(280, 52.2, 0), App.Vector(0, 0, 1), 3.2), math.radians(-90), math.radians(-12)),  # 7
    Part.LineSegment(App.Vector(239.6, 71.8, 0), App.Vector(243.5, 52.9, 0)),  # 8
    Part.ArcOfCircle(Part.Circle(App.Vector(240.4, 52.2, 0), App.Vector(0, 0, 1), 3.2), math.radians(-90), math.radians(12)),  # 9
    Part.LineSegment(App.Vector(240.4, 49, 0), App.Vector(222.4, 49, 0)),  # 10
    Part.ArcOfCircle(Part.Circle(App.Vector(222.4, 52.2, 0), App.Vector(0, 0, 1), 3.2), math.radians(180), math.radians(270)),  # 11
    Part.LineSegment(App.Vector(219.3, 52.2, 0), App.Vector(219.3, 71.1, 0)),  # 12
    Part.ArcOfCircle(Part.Circle(App.Vector(222.4, 71.1, 0), App.Vector(0, 0, 1), 3.2), math.radians(90), math.radians(180)),  # 13
    Part.LineSegment(App.Vector(222.4, 74.3, 0), App.Vector(236.5, 74.3, 0)),  # 14
    Part.ArcOfCircle(Part.Circle(App.Vector(236.5, 71.1, 0), App.Vector(0, 0, 1), 3.2), math.radians(12), math.radians(90)),  # 15
    Part.LineSegment(App.Vector(222.4, 42.7, 0), App.Vector(229.4, 42.7, 0)),  # 16
    Part.ArcOfCircle(Part.Circle(App.Vector(229.4, 39.5, 0), App.Vector(0, 0, 1), 3.2), math.radians(0), math.radians(90)),  # 17
    Part.LineSegment(App.Vector(232.6, 39.5, 0), App.Vector(232.6, 13.6, 0)),  # 18
    Part.ArcOfCircle(Part.Circle(App.Vector(231.3, 13.6, 0), App.Vector(0, 0, 1), 1.3), math.radians(-135), math.radians(0)),  # 19
    Part.LineSegment(App.Vector(230.4, 12.7, 0), App.Vector(220.4, 22.8, 0)),  # 20
    Part.ArcOfCircle(Part.Circle(App.Vector(223.1, 25.4, 0), App.Vector(0, 0, 1), 3.8), math.radians(180), math.radians(225)),  # 21
    Part.LineSegment(App.Vector(219.3, 25.4, 0), App.Vector(219.3, 39.5, 0)),  # 22
    Part.ArcOfCircle(Part.Circle(App.Vector(222.4, 39.5, 0), App.Vector(0, 0, 1), 3.2), math.radians(90), math.radians(180)),  # 23
], False)
sketch10.addConstraint([
    Sketcher.Constraint("Tangent", 0, 2, 1, 2),
    Sketcher.Constraint("Tangent", 1, 1, 2, 1),
    Sketcher.Constraint("Tangent", 2, 2, 3, 2),
    Sketcher.Constraint("Tangent", 3, 1, 4, 1),
    Sketcher.Constraint("Tangent", 4, 2, 5, 2),
    Sketcher.Constraint("Tangent", 5, 1, 6, 1),
    Sketcher.Constraint("Tangent", 6, 2, 7, 2),
    Sketcher.Constraint("Tangent", 7, 1, 0, 1),
    Sketcher.Constraint("Tangent", 8, 2, 9, 2),
    Sketcher.Constraint("Tangent", 9, 1, 10, 1),
    Sketcher.Constraint("Tangent", 10, 2, 11, 2),
    Sketcher.Constraint("Tangent", 11, 1, 12, 1),
    Sketcher.Constraint("Tangent", 12, 2, 13, 2),
    Sketcher.Constraint("Tangent", 13, 1, 14, 1),
    Sketcher.Constraint("Tangent", 14, 2, 15, 2),
    Sketcher.Constraint("Tangent", 15, 1, 8, 1),
    Sketcher.Constraint("Tangent", 16, 2, 17, 2),
    Sketcher.Constraint("Tangent", 17, 1, 18, 1),
    Sketcher.Constraint("Tangent", 18, 2, 19, 2),
    Sketcher.Constraint("Tangent", 19, 1, 20, 1),
    Sketcher.Constraint("Tangent", 20, 2, 21, 2),
    Sketcher.Constraint("Tangent", 21, 1, 22, 1),
    Sketcher.Constraint("Tangent", 22, 2, 23, 2),
    Sketcher.Constraint("Tangent", 23, 1, 16, 1),
    Sketcher.Constraint("Horizontal", 0),
    Sketcher.Constraint("Horizontal", 4),
    Sketcher.Constraint("Horizontal", 10),
    Sketcher.Constraint("Vertical", 12),
    Sketcher.Constraint("Horizontal", 14),
    Sketcher.Constraint("Horizontal", 16),
    Sketcher.Constraint("Vertical", 18),
    Sketcher.Constraint("Vertical", 22),
    Sketcher.Constraint("Equal", 1, 3),
    Sketcher.Constraint("Equal", 3, 5),
    Sketcher.Constraint("Equal", 5, 7),
    Sketcher.Constraint("Equal", 7, 9),
    Sketcher.Constraint("Equal", 9, 11),
    Sketcher.Constraint("Equal", 11, 13),
    Sketcher.Constraint("Equal", 13, 15),
    Sketcher.Constraint("Equal", 15, 17),
    Sketcher.Constraint("Equal", 17, 23),
    Sketcher.Constraint("Parallel", 2, 8),
    Sketcher.Constraint("Horizontal", 7, 3, 9, 3),
    Sketcher.Constraint("Horizontal", 5, 3, 13, 3),
    Sketcher.Constraint("Vertical", 13, 3, 23, 3),
    Sketcher.Constraint("Radius", 19, Q("0.05 in")),
    Sketcher.Constraint("Radius", 21, Q("0.15 in")),
    Sketcher.Constraint("Radius", 1, Q("0.125 in")),
    Sketcher.Constraint("Angle", 2, Q("101.8 deg")),
    Sketcher.Constraint("DistanceX", 21, 3, 17, 3, Q("0.25 in")),
    Sketcher.Constraint("DistanceY", 16, 2, 10, 2, Q("0.25 in")),
    Sketcher.Constraint("Angle", 20, Q("135 deg")),
    Sketcher.Constraint("DistanceY", 12, 1, 12, 2, Q("0.7441 in")),
    Sketcher.Constraint("DistanceX", -1, 1, 15, 1, Q("9.433 in")),
    Sketcher.Constraint("DistanceX", 0, 2, 0, 1, 14.9413),
    Sketcher.Constraint("DistanceX", 4, 1, 4, 2, 22.8366),
    Sketcher.Constraint("DistanceX", 10, 2, 10, 1, 18.003),
    Sketcher.Constraint("DistanceY", 18, 2, 18, 1, 25.91),
    Sketcher.Constraint("DistanceX", -1, 1, 1, 3, Q("10.4366 in")),
    Sketcher.Constraint("DistanceY", -1, 1, 1, 3, Q("2.0554 in")),
])
sketch10.setExpression("Constraints[45]", "Params.sketch10_radius")
sketch10.setExpression("Constraints[46]", "Params.sketch10_radius2")
sketch10.setExpression("Constraints[47]", "Params.sketch10_radius3")
pocket6 = body.newObject("PartDesign::Pocket", "Pocket005")
pocket6.Profile = sketch10
pocket6.setExpression("Length", "Params.pocket6_length")
pocket6.Reversed = True

doc.recompute()
